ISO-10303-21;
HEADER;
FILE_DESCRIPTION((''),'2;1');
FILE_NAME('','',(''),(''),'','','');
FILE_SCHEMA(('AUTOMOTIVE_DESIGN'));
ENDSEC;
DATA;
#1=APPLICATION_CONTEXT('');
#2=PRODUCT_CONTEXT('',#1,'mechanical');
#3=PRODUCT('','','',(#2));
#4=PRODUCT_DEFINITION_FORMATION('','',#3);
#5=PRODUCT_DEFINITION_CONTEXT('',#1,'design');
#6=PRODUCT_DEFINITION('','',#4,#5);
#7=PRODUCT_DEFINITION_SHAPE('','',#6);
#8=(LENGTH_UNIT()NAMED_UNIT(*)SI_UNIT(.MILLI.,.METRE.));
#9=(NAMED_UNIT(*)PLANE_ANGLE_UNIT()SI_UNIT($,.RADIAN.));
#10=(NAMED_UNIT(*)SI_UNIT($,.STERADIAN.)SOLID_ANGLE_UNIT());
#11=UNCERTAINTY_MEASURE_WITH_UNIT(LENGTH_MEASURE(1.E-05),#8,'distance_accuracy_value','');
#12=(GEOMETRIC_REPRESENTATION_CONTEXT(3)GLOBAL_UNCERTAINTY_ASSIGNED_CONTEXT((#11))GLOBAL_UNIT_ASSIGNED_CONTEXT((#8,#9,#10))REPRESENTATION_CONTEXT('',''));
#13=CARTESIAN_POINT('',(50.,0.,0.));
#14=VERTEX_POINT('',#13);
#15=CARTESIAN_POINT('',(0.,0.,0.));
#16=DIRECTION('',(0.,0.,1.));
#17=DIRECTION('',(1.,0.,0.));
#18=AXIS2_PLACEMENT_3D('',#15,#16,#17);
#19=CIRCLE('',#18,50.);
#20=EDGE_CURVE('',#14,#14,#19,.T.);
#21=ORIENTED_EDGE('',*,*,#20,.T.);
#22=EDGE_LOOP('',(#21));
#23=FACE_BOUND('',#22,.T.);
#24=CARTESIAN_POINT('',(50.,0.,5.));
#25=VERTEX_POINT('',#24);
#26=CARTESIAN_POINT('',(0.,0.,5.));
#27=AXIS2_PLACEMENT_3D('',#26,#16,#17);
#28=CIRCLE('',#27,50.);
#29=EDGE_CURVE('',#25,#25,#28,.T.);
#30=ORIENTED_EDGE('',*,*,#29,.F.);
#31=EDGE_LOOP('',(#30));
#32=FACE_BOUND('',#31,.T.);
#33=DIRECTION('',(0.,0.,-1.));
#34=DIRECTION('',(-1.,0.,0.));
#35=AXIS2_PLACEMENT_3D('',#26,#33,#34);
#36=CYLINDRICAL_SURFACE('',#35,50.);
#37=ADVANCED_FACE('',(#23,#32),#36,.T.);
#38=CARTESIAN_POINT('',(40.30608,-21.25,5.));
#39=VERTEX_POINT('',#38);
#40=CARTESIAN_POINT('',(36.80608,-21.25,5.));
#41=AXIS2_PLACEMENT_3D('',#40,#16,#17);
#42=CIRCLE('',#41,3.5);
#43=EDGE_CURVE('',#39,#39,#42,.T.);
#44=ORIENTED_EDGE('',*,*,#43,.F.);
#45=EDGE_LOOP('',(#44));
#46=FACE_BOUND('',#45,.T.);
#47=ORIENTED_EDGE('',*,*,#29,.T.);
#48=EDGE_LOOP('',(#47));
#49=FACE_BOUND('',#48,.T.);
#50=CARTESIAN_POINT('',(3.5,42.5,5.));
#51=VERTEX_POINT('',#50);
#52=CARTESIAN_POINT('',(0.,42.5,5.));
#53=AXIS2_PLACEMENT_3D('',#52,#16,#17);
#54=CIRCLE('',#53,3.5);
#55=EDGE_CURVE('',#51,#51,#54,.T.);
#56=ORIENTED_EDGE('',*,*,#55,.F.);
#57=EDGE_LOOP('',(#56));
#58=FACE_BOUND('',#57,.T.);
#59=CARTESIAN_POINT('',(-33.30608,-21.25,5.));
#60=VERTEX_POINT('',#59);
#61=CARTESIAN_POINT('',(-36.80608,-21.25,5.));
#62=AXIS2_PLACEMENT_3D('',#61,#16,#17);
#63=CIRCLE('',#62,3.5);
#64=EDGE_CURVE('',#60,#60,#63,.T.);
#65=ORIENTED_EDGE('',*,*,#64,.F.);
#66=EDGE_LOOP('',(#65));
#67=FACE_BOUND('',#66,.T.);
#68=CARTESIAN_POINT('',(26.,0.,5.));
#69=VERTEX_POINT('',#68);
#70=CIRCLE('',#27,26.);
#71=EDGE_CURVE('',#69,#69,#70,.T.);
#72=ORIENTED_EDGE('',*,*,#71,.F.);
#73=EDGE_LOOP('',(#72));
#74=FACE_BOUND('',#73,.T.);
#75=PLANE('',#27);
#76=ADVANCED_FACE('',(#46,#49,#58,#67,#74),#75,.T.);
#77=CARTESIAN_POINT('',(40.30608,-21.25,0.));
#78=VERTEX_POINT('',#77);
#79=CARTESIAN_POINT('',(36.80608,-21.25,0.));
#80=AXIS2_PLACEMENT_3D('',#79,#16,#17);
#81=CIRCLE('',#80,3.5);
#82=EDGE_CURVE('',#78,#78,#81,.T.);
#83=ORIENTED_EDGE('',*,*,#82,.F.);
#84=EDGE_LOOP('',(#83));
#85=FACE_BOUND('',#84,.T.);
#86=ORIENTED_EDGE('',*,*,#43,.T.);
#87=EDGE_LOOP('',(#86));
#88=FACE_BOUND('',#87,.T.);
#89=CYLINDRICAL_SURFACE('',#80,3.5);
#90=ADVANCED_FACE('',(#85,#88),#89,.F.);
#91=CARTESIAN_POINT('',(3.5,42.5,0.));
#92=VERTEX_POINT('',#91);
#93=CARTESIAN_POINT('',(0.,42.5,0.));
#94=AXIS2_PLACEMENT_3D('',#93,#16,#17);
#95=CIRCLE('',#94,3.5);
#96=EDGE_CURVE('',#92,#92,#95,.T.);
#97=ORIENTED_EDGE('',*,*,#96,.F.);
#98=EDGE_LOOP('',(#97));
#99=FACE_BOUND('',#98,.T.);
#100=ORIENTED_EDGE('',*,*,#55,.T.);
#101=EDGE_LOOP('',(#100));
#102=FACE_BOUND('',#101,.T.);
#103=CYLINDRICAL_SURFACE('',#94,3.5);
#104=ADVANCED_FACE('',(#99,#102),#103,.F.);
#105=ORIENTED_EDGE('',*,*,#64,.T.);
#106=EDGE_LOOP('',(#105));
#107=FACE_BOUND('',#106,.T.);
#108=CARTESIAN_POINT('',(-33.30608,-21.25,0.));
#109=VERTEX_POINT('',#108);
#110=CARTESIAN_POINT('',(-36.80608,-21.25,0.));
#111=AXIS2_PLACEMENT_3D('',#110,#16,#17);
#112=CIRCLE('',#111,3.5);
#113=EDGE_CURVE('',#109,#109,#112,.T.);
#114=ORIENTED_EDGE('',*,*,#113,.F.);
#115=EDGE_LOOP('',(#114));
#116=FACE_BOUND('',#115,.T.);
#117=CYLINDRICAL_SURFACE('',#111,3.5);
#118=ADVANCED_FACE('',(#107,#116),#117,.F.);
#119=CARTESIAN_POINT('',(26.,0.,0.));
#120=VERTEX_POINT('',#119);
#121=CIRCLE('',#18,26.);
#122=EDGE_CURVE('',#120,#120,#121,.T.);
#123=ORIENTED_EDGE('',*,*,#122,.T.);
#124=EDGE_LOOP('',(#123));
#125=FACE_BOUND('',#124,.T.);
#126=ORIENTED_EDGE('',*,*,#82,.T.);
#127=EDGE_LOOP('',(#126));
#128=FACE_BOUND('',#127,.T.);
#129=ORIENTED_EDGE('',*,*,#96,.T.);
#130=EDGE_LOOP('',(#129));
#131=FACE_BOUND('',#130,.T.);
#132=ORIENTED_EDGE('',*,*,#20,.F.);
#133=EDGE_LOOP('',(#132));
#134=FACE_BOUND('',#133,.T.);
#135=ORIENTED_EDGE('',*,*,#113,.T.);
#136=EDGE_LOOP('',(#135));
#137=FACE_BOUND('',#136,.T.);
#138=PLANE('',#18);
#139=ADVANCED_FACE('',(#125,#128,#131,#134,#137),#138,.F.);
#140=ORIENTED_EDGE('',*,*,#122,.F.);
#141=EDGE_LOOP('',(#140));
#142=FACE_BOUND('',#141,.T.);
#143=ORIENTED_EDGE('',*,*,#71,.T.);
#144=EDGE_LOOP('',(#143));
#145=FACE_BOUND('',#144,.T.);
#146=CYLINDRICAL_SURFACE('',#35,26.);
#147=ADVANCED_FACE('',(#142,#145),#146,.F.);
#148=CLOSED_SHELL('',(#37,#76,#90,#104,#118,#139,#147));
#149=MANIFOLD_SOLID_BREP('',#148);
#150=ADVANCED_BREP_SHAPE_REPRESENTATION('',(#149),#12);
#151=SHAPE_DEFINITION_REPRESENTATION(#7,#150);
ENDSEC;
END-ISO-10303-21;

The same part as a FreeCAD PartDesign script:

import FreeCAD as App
import Part
import Sketcher

doc = App.newDocument("Part")
body = doc.addObject("PartDesign::Body", "Body")

# Sketch on XY plane
sketch1 = body.newObject("Sketcher::SketchObject", "Sketch")
sketch1.AttachmentSupport = (doc.getObject("XY_Plane"), [""])
sketch1.MapMode = "FlatFace"
sketch1.addGeometry([
    Part.Circle(App.Vector(0, 0, 0), App.Vector(0, 0, 1), 50),
    Part.Circle(App.Vector(0, 0, 0), App.Vector(0, 0, 1), 26),
], False)
sketch1.addConstraint([
    Sketcher.Constraint("Coincident", 0, 3, -1, 1),
    Sketcher.Constraint("Coincident", 1, 3, -1, 1),
    Sketcher.Constraint("Diameter", 0, 100.0),
    Sketcher.Constraint("Diameter", 1, 52.0),
])
pad1 = body.newObject("PartDesign::Pad", "Pad")
pad1.Profile = sketch1
pad1.Length = 5

# Sketch on XY plane
sketch2 = body.newObject("Sketcher::SketchObject", "Sketch001")
sketch2.AttachmentSupport = (doc.getObject("XY_Plane"), [""])
sketch2.MapMode = "FlatFace"
sketch2.AttachmentOffset = App.Placement(App.Vector(0, 0, 5), App.Rotation())
sketch2.addGeometry([
    Part.Circle(App.Vector(0, 42.5, 0), App.Vector(0, 0, 1), 3.5),
    Part.Circle(App.Vector(36.80608, -21.25, 0), App.Vector(0, 0, 1), 3.5),
    Part.Circle(App.Vector(-36.80608, -21.25, 0), App.Vector(0, 0, 1), 3.5),
], False)
sketch2.addConstraint([
    Sketcher.Constraint("Equal", 0, 1),
    Sketcher.Constraint("Equal", 1, 2),
    Sketcher.Constraint("Symmetric", 1, 3, 2, 3, -2),
    Sketcher.Constraint("PointOnObject", 0, 3, -2),
    Sketcher.Constraint("Diameter", 0, 7.0),
    Sketcher.Constraint("DistanceY", -1, 1, 0, 3, 42.5),
    Sketcher.Constraint("DistanceY", 1, 3, -1, 1, 21.25),
    Sketcher.Constraint("DistanceX", -1, 1, 1, 3, 36.80608),
])
pocket1 = body.newObject("PartDesign::Pocket", "Pocket")
pocket1.Profile = sketch2
pocket1.Type = "ThroughAll"
pocket1.Midplane = True

doc.recompute()
